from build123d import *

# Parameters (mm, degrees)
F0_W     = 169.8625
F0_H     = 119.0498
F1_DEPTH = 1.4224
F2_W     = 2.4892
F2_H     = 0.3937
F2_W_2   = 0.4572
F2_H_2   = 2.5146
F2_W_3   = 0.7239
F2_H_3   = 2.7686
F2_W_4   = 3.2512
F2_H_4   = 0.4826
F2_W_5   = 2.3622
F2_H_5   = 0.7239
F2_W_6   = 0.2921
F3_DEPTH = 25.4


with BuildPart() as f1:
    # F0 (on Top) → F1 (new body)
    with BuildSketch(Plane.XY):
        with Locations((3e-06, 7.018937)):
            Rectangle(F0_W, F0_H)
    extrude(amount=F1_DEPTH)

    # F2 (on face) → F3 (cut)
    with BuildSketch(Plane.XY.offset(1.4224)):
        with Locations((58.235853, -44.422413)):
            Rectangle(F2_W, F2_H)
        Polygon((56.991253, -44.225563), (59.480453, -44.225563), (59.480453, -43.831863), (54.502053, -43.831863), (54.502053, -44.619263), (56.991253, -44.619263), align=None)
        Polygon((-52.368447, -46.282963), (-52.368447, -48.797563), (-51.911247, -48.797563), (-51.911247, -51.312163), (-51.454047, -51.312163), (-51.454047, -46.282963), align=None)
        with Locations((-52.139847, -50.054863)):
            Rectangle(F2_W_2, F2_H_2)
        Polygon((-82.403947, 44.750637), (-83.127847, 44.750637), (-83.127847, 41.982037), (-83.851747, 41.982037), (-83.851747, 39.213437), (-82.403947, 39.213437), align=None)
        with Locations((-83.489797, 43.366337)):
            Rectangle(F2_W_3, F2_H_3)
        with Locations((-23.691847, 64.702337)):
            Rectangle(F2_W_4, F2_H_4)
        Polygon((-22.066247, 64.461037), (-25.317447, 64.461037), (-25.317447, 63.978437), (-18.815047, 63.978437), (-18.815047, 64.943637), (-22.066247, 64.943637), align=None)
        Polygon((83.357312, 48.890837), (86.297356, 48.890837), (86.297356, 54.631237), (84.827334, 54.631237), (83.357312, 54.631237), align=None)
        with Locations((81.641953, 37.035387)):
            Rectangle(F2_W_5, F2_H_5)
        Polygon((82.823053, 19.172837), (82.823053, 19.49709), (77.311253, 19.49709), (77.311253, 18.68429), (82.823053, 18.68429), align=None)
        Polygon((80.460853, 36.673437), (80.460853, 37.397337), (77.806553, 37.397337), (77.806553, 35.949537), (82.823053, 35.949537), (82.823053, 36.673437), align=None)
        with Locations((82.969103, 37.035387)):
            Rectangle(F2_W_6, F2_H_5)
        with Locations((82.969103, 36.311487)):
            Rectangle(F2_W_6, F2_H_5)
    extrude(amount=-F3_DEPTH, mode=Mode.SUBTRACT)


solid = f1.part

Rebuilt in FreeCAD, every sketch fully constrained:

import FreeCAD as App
import Part
import Sketcher
Q = App.Units.Quantity

doc = App.newDocument("Part")
body = doc.addObject("PartDesign::Body", "Body")

# Sketch on XY plane
sketch1 = doc.addObject("Sketcher::SketchObject", "Sketch")
body.addObject(sketch1)
sketch1.AttachmentSupport = (doc.XY_Plane, [""])
sketch1.MapMode = "FlatFace"
sketch1.addGeometry(Part.LineSegment(App.Vector(-85, 67, 0), App.Vector(-85, -53, 0)), False)
sketch1.addGeometry(Part.LineSegment(App.Vector(-85, -53, 0), App.Vector(85, -53, 0)), False)
sketch1.addGeometry(Part.LineSegment(App.Vector(85, -53, 0), App.Vector(85, 67, 0)), False)
sketch1.addGeometry(Part.LineSegment(App.Vector(85, 67, 0), App.Vector(-85, 67, 0)), False)
sketch1.addConstraint(Sketcher.Constraint("Coincident", 0, 2, 1, 1))
sketch1.addConstraint(Sketcher.Constraint("Coincident", 1, 2, 2, 1))
sketch1.addConstraint(Sketcher.Constraint("Coincident", 2, 2, 3, 1))
sketch1.addConstraint(Sketcher.Constraint("Coincident", 3, 2, 0, 1))
sketch1.addConstraint(Sketcher.Constraint("Vertical", 0))
sketch1.addConstraint(Sketcher.Constraint("Horizontal", 1))
sketch1.addConstraint(Sketcher.Constraint("Vertical", 2))
sketch1.addConstraint(Sketcher.Constraint("Horizontal", 3))
sketch1.addConstraint(Sketcher.Constraint("DistanceX", 1, 1, 1, 2, Q("6.6875 in")))
sketch1.addConstraint(Sketcher.Constraint("DistanceY", 0, 2, 0, 1, Q("4.687 in")))
sketch1.addConstraint(Sketcher.Constraint("DistanceX", 0, 2, -1, 1, Q("3.3437499 in")))
sketch1.addConstraint(Sketcher.Constraint("DistanceY", 0, 2, -1, 1, 52.505963))
pad1 = doc.addObject("PartDesign::Pad", "Pad")
body.addObject(pad1)
pad1.Profile = sketch1
pad1.Length = Q("0.056 in")

# Sketch on XY plane
sketch2 = doc.addObject("Sketcher::SketchObject", "Sketch001")
body.addObject(sketch2)
sketch2.AttachmentSupport = (doc.XY_Plane, [""])
sketch2.MapMode = "FlatFace"
sketch2.AttachmentOffset = App.Placement(App.Vector(0, 0, 0.056 * 25.4), App.Rotation())
sketch2.addGeometry(Part.LineSegment(App.Vector(59.5, -44.6, 0), App.Vector(59.5, -43.8, 0)), False)
sketch2.addGeometry(Part.LineSegment(App.Vector(59.5, -43.8, 0), App.Vector(54.5, -43.8, 0)), False)
sketch2.addGeometry(Part.LineSegment(App.Vector(54.5, -43.8, 0), App.Vector(54.5, -44.6, 0)), False)
sketch2.addGeometry(Part.LineSegment(App.Vector(54.5, -44.6, 0), App.Vector(59.5, -44.6, 0)), False)
sketch2.addGeometry(Part.LineSegment(App.Vector(-52.4, -46.3, 0), App.Vector(-52.4, -51.3, 0)), False)
sketch2.addGeometry(Part.LineSegment(App.Vector(-52.4, -51.3, 0), App.Vector(-51.5, -51.3, 0)), False)
sketch2.addGeometry(Part.LineSegment(App.Vector(-51.5, -51.3, 0), App.Vector(-51.5, -46.3, 0)), False)
sketch2.addGeometry(Part.LineSegment(App.Vector(-51.5, -46.3, 0), App.Vector(-52.4, -46.3, 0)), False)
sketch2.addGeometry(Part.LineSegment(App.Vector(-82.4, 44.8, 0), App.Vector(-83.9, 44.8, 0)), False)
sketch2.addGeometry(Part.LineSegment(App.Vector(-83.9, 44.8, 0), App.Vector(-83.9, 39.2, 0)), False)
sketch2.addGeometry(Part.LineSegment(App.Vector(-83.9, 39.2, 0), App.Vector(-82.4, 39.2, 0)), False)
sketch2.addGeometry(Part.LineSegment(App.Vector(-82.4, 39.2, 0), App.Vector(-82.4, 44.8, 0)), False)
sketch2.addGeometry(Part.LineSegment(App.Vector(-25.3, 64.9, 0), App.Vector(-25.3, 64, 0)), False)
sketch2.addGeometry(Part.LineSegment(App.Vector(-25.3, 64, 0), App.Vector(-18.8, 64, 0)), False)
sketch2.addGeometry(Part.LineSegment(App.Vector(-18.8, 64, 0), App.Vector(-18.8, 64.9, 0)), False)
sketch2.addGeometry(Part.LineSegment(App.Vector(-18.8, 64.9, 0), App.Vector(-25.3, 64.9, 0)), False)
sketch2.addGeometry(Part.LineSegment(App.Vector(83.4, 48.9, 0), App.Vector(86.3, 48.9, 0)), False)
sketch2.addGeometry(Part.LineSegment(App.Vector(86.3, 48.9, 0), App.Vector(86.3, 54.6, 0)), False)
sketch2.addGeometry(Part.LineSegment(App.Vector(86.3, 54.6, 0), App.Vector(83.4, 54.6, 0)), False)
sketch2.addGeometry(Part.LineSegment(App.Vector(83.4, 54.6, 0), App.Vector(83.4, 48.9, 0)), False)
sketch2.addGeometry(Part.LineSegment(App.Vector(77.8, 37.4, 0), App.Vector(77.8, 35.9, 0)), False)
sketch2.addGeometry(Part.LineSegment(App.Vector(77.8, 35.9, 0), App.Vector(83.1, 35.9, 0)), False)
sketch2.addGeometry(Part.LineSegment(App.Vector(83.1, 35.9, 0), App.Vector(83.1, 37.4, 0)), False)
sketch2.addGeometry(Part.LineSegment(App.Vector(83.1, 37.4, 0), App.Vector(77.8, 37.4, 0)), False)
sketch2.addGeometry(Part.LineSegment(App.Vector(82.8, 19.5, 0), App.Vector(77.3, 19.5, 0)), False)
sketch2.addGeometry(Part.LineSegment(App.Vector(77.3, 19.5, 0), App.Vector(77.3, 18.7, 0)), False)
sketch2.addGeometry(Part.LineSegment(App.Vector(77.3, 18.7, 0), App.Vector(82.8, 18.7, 0)), False)
sketch2.addGeometry(Part.LineSegment(App.Vector(82.8, 18.7, 0), App.Vector(82.8, 19.5, 0)), False)
sketch2.addConstraint(Sketcher.Constraint("Coincident", 0, 2, 1, 1))
sketch2.addConstraint(Sketcher.Constraint("Coincident", 1, 2, 2, 1))
sketch2.addConstraint(Sketcher.Constraint("Coincident", 2, 2, 3, 1))
sketch2.addConstraint(Sketcher.Constraint("Coincident", 3, 2, 0, 1))
sketch2.addConstraint(Sketcher.Constraint("Coincident", 4, 2, 5, 1))
sketch2.addConstraint(Sketcher.Constraint("Coincident", 5, 2, 6, 1))
sketch2.addConstraint(Sketcher.Constraint("Coincident", 6, 2, 7, 1))
sketch2.addConstraint(Sketcher.Constraint("Coincident", 7, 2, 4, 1))
sketch2.addConstraint(Sketcher.Constraint("Coincident", 8, 2, 9, 1))
sketch2.addConstraint(Sketcher.Constraint("Coincident", 9, 2, 10, 1))
sketch2.addConstraint(Sketcher.Constraint("Coincident", 10, 2, 11, 1))
sketch2.addConstraint(Sketcher.Constraint("Coincident", 11, 2, 8, 1))
sketch2.addConstraint(Sketcher.Constraint("Coincident", 12, 2, 13, 1))
sketch2.addConstraint(Sketcher.Constraint("Coincident", 13, 2, 14, 1))
sketch2.addConstraint(Sketcher.Constraint("Coincident", 14, 2, 15, 1))
sketch2.addConstraint(Sketcher.Constraint("Coincident", 15, 2, 12, 1))
sketch2.addConstraint(Sketcher.Constraint("Coincident", 16, 2, 17, 1))
sketch2.addConstraint(Sketcher.Constraint("Coincident", 17, 2, 18, 1))
sketch2.addConstraint(Sketcher.Constraint("Coincident", 18, 2, 19, 1))
sketch2.addConstraint(Sketcher.Constraint("Coincident", 19, 2, 16, 1))
sketch2.addConstraint(Sketcher.Constraint("Coincident", 20, 2, 21, 1))
sketch2.addConstraint(Sketcher.Constraint("Coincident", 21, 2, 22, 1))
sketch2.addConstraint(Sketcher.Constraint("Coincident", 22, 2, 23, 1))
sketch2.addConstraint(Sketcher.Constraint("Coincident", 23, 2, 20, 1))
sketch2.addConstraint(Sketcher.Constraint("Coincident", 24, 2, 25, 1))
sketch2.addConstraint(Sketcher.Constraint("Coincident", 25, 2, 26, 1))
sketch2.addConstraint(Sketcher.Constraint("Coincident", 26, 2, 27, 1))
sketch2.addConstraint(Sketcher.Constraint("Coincident", 27, 2, 24, 1))
sketch2.addConstraint(Sketcher.Constraint("Vertical", 0))
sketch2.addConstraint(Sketcher.Constraint("Horizontal", 1))
sketch2.addConstraint(Sketcher.Constraint("Vertical", 2))
sketch2.addConstraint(Sketcher.Constraint("Horizontal", 3))
sketch2.addConstraint(Sketcher.Constraint("Vertical", 4))
sketch2.addConstraint(Sketcher.Constraint("Horizontal", 5))
sketch2.addConstraint(Sketcher.Constraint("Vertical", 6))
sketch2.addConstraint(Sketcher.Constraint("Horizontal", 7))
sketch2.addConstraint(Sketcher.Constraint("Horizontal", 8))
sketch2.addConstraint(Sketcher.Constraint("Vertical", 9))
sketch2.addConstraint(Sketcher.Constraint("Horizontal", 10))
sketch2.addConstraint(Sketcher.Constraint("Vertical", 11))
sketch2.addConstraint(Sketcher.Constraint("Vertical", 12))
sketch2.addConstraint(Sketcher.Constraint("Horizontal", 13))
sketch2.addConstraint(Sketcher.Constraint("Vertical", 14))
sketch2.addConstraint(Sketcher.Constraint("Horizontal", 15))
sketch2.addConstraint(Sketcher.Constraint("Horizontal", 16))
sketch2.addConstraint(Sketcher.Constraint("Vertical", 17))
sketch2.addConstraint(Sketcher.Constraint("Horizontal", 18))
sketch2.addConstraint(Sketcher.Constraint("Vertical", 19))
sketch2.addConstraint(Sketcher.Constraint("Vertical", 20))
sketch2.addConstraint(Sketcher.Constraint("Horizontal", 21))
sketch2.addConstraint(Sketcher.Constraint("Vertical", 22))
sketch2.addConstraint(Sketcher.Constraint("Horizontal", 23))
sketch2.addConstraint(Sketcher.Constraint("Horizontal", 24))
sketch2.addConstraint(Sketcher.Constraint("Vertical", 25))
sketch2.addConstraint(Sketcher.Constraint("Horizontal", 26))
sketch2.addConstraint(Sketcher.Constraint("Vertical", 27))
sketch2.addConstraint(Sketcher.Constraint("Equal", 10, 20))
sketch2.addConstraint(Sketcher.Constraint("DistanceX", 1, 2, 1, 1, Q("0.196 in")))
sketch2.addConstraint(Sketcher.Constraint("DistanceX", 5, 1, 5, 2, Q("0.036 in")))
sketch2.addConstraint(Sketcher.Constraint("DistanceX", 8, 2, 8, 1, Q("0.057 in")))
sketch2.addConstraint(Sketcher.Constraint("DistanceX", 13, 1, 13, 2, Q("0.256 in")))
sketch2.addConstraint(Sketcher.Constraint("DistanceX", 21, 1, 21, 2, Q("0.209 in")))
sketch2.addConstraint(Sketcher.Constraint("DistanceX", 24, 2, 24, 1, Q("0.217 in")))
sketch2.addConstraint(Sketcher.Constraint("DistanceY", 0, 1, 0, 2, Q("0.031 in")))
sketch2.addConstraint(Sketcher.Constraint("DistanceY", 4, 2, 4, 1, Q("0.198 in")))
sketch2.addConstraint(Sketcher.Constraint("DistanceY", 9, 2, 9, 1, Q("0.218 in")))
sketch2.addConstraint(Sketcher.Constraint("DistanceY", 12, 2, 12, 1, Q("0.038 in")))
sketch2.addConstraint(Sketcher.Constraint("DistanceY", 17, 1, 17, 2, Q("0.226 in")))
sketch2.addConstraint(Sketcher.Constraint("DistanceY", 25, 2, 25, 1, Q("0.032 in")))
sketch2.addConstraint(Sketcher.Constraint("DistanceY", 7, 2, 8, 2, Q("3.584 in")))
sketch2.addConstraint(Sketcher.Constraint("DistanceX", 8, 2, 1, 2, Q("5.447 in")))
sketch2.addConstraint(Sketcher.Constraint("DistanceY", 11, 2, 12, 2, Q("0.757 in")))
sketch2.addConstraint(Sketcher.Constraint("DistanceX", 6, 2, 12, 2, Q("1.029 in")))
sketch2.addConstraint(Sketcher.Constraint("DistanceY", 16, 2, 13, 2, Q("0.594 in")))
sketch2.addConstraint(Sketcher.Constraint("DistanceY", 0, 2, 20, 2, Q("3.141 in")))
sketch2.addConstraint(Sketcher.Constraint("DistanceX", 4, 2, 2, 2, Q("4.2075 in")))
sketch2.addConstraint(Sketcher.Constraint("DistanceY", 4, 2, 2, 2, Q("0.2635 in")))
sketch2.addConstraint(Sketcher.Constraint("DistanceX", 0, 2, 20, 2, Q("0.7215 in")))
sketch2.addConstraint(Sketcher.Constraint("DistanceX", 24, 2, 20, 2, Q("0.0195 in")))
sketch2.addConstraint(Sketcher.Constraint("DistanceX", 16, 1, 16, 2, 2.940044))
sketch2.addConstraint(Sketcher.Constraint("DistanceX", -1, 1, 18, 2, 83.357312))
sketch2.addConstraint(Sketcher.Constraint("DistanceY", -1, 1, 24, 2, 19.49709))
sketch2.addConstraint(Sketcher.Constraint("DistanceX", 0, 2, 18, 2, 23.876859))
sketch2.addConstraint(Sketcher.Constraint("DistanceY", 0, 2, -1, 1, 43.831863))
pocket1 = doc.addObject("PartDesign::Pocket", "Pocket")
body.addObject(pocket1)
pocket1.Profile = sketch2
pocket1.Length = Q("1 in")

doc.recompute()
